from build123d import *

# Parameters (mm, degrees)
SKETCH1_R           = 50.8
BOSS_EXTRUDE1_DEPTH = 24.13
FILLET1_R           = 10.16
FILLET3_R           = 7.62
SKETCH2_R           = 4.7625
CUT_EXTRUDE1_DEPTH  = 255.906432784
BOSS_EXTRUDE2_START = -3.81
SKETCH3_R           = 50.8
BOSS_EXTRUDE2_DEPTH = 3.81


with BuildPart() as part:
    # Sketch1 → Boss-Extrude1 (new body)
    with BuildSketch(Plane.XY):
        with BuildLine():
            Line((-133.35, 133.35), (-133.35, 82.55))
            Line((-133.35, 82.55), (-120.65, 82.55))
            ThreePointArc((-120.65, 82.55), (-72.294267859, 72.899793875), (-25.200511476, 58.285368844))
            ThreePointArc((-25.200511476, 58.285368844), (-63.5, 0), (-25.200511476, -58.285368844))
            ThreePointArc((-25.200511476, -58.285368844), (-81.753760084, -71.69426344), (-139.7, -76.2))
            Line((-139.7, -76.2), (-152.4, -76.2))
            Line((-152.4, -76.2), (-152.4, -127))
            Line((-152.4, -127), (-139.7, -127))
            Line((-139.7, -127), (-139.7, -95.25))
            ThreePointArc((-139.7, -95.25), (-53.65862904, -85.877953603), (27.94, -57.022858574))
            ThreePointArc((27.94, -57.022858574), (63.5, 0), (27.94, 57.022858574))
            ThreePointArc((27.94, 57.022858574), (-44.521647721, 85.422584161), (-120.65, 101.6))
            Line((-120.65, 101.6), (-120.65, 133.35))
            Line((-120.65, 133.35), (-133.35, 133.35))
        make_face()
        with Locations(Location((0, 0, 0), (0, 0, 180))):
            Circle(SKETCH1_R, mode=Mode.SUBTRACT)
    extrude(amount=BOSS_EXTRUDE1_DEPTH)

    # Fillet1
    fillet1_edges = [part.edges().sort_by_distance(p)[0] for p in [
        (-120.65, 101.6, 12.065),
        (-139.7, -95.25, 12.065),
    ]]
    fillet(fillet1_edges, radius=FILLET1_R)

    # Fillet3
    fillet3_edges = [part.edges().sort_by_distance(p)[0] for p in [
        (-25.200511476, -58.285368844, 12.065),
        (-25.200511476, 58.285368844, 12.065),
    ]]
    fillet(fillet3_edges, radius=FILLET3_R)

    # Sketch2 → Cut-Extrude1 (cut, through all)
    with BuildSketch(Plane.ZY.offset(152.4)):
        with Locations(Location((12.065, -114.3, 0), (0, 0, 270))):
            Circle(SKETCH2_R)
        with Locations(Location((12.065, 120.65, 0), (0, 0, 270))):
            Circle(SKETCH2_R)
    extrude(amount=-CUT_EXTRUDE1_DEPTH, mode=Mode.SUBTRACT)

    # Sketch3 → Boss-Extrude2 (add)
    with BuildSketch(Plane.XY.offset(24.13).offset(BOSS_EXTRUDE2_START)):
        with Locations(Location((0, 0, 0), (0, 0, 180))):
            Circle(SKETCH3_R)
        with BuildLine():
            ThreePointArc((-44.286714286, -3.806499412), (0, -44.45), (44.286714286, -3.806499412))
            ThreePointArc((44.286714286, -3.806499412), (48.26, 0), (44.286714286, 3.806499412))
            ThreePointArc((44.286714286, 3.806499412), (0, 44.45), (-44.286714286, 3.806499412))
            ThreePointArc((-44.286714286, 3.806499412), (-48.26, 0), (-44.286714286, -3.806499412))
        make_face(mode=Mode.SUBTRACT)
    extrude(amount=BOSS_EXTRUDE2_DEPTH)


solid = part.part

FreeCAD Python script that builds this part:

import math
import FreeCAD as App
import Part
import Sketcher
from FreeCAD import Vector
Q = App.Units.Quantity


def edges_at(feature, points):
    """Names of the edges that pass closest to the given points."""
    edges = feature.Shape.Edges
    near = lambda p: min(range(len(edges)), key=lambda i: edges[i].distToShape(Part.Vertex(*p))[0])
    return sorted({f"Edge{near(p) + 1}" for p in points})

doc = App.newDocument("Part")
body = doc.addObject("PartDesign::Body", "Body")

# Sketch on XY plane
sketch1 = body.newObject("Sketcher::SketchObject", "Sketch")
sketch1.AttachmentSupport = (doc.getObject("XY_Plane"), [""])
sketch1.MapMode = "FlatFace"
sketch1.addGeometry(Part.LineSegment(Vector(-133.35, 133.35, 0), Vector(-133.35, 82.55, 0)), False)
sketch1.addGeometry(Part.LineSegment(Vector(-133.35, 82.55, 0), Vector(-120.65, 82.55, 0)), False)
sketch1.addGeometry(Part.ArcOfCircle(Part.Circle(Vector(-189.246773, -387.154874, 0), Vector(0, 0, 1), 474.687462), math.radians(69.78231), math.radians(81.691133)), False)
sketch1.addGeometry(Part.ArcOfCircle(Part.Circle(Vector(0, 0, 0), Vector(0, 0, 1), 63.5), math.radians(113.381931), math.radians(246.618069)), False)
sketch1.addGeometry(Part.ArcOfCircle(Part.Circle(Vector(-139.7, 298.663059, 0), Vector(0, 0, 1), 374.863059), math.radians(-90), math.radians(-72.215151)), False)
sketch1.addGeometry(Part.LineSegment(Vector(-139.7, -76.2, 0), Vector(-152.4, -76.2, 0)), False)
sketch1.addGeometry(Part.LineSegment(Vector(-152.4, -76.2, 0), Vector(-152.4, -127, 0)), False)
sketch1.addGeometry(Part.LineSegment(Vector(-152.4, -127, 0), Vector(-139.7, -127, 0)), False)
sketch1.addGeometry(Part.LineSegment(Vector(-139.7, -127, 0), Vector(-139.7, -95.25, 0)), False)
sketch1.addGeometry(Part.ArcOfCircle(Part.Circle(Vector(-136.999746, 279.603334, 0), Vector(0, 0, 1), 374.863059), math.radians(-90.412723), math.radians(-63.896119)), False)
sketch1.addGeometry(Part.ArcOfCircle(Part.Circle(Vector(0, 0, 0), Vector(0, 0, 1), 63.5), math.radians(-63.896119), math.radians(63.896119)), False)
sketch1.addGeometry(Part.ArcOfCircle(Part.Circle(Vector(-180.922483, -369.245425, 0), Vector(0, 0, 1), 474.687462), math.radians(63.896119), math.radians(82.705293)), False)
sketch1.addGeometry(Part.LineSegment(Vector(-120.65, 101.6, 0), Vector(-120.65, 133.35, 0)), False)
sketch1.addGeometry(Part.LineSegment(Vector(-120.65, 133.35, 0), Vector(-133.35, 133.35, 0)), False)
sketch1.addGeometry(Part.Circle(Vector(0, 0, 0), Vector(0, 0, 1), 50.8), False)
sketch1.addConstraint(Sketcher.Constraint("Coincident", 0, 2, 1, 1))
sketch1.addConstraint(Sketcher.Constraint("Coincident", 1, 2, 2, 2))
sketch1.addConstraint(Sketcher.Constraint("Coincident", 2, 1, 3, 1))
sketch1.addConstraint(Sketcher.Constraint("Coincident", 3, 2, 4, 2))
sketch1.addConstraint(Sketcher.Constraint("Tangent", 4, 1, 5, 1))
sketch1.addConstraint(Sketcher.Constraint("Coincident", 5, 2, 6, 1))
sketch1.addConstraint(Sketcher.Constraint("Coincident", 6, 2, 7, 1))
sketch1.addConstraint(Sketcher.Constraint("Coincident", 7, 2, 8, 1))
sketch1.addConstraint(Sketcher.Constraint("Coincident", 8, 2, 9, 1))
sketch1.addConstraint(Sketcher.Constraint("Tangent", 9, 2, 10, 1))
sketch1.addConstraint(Sketcher.Constraint("Tangent", 10, 2, 11, 1))
sketch1.addConstraint(Sketcher.Constraint("Coincident", 11, 2, 12, 1))
sketch1.addConstraint(Sketcher.Constraint("Coincident", 12, 2, 13, 1))
sketch1.addConstraint(Sketcher.Constraint("Coincident", 13, 2, 0, 1))
sketch1.addConstraint(Sketcher.Constraint("Vertical", 0))
sketch1.addConstraint(Sketcher.Constraint("Horizontal", 1))
sketch1.addConstraint(Sketcher.Constraint("Horizontal", 5))
sketch1.addConstraint(Sketcher.Constraint("Vertical", 6))
sketch1.addConstraint(Sketcher.Constraint("Horizontal", 7))
sketch1.addConstraint(Sketcher.Constraint("Vertical", 8))
sketch1.addConstraint(Sketcher.Constraint("Vertical", 12))
sketch1.addConstraint(Sketcher.Constraint("Horizontal", 13))
sketch1.addConstraint(Sketcher.Constraint("Coincident", 3, 3, -1, 1))
sketch1.addConstraint(Sketcher.Constraint("Coincident", 10, 3, -1, 1))
sketch1.addConstraint(Sketcher.Constraint("Coincident", 14, 3, -1, 1))
sketch1.addConstraint(Sketcher.Constraint("Equal", 4, 9))
sketch1.addConstraint(Sketcher.Constraint("Equal", 3, 10))
sketch1.addConstraint(Sketcher.Constraint("Equal", 2, 11))
sketch1.addConstraint(Sketcher.Constraint("Vertical", 2, 1, 3, 2))
sketch1.addConstraint(Sketcher.Constraint("Vertical", 4, 1, 7, 2))
sketch1.addConstraint(Sketcher.Constraint("Vertical", 1, 2, 11, 2))
sketch1.addConstraint(Sketcher.Constraint("Equal", 1, 5))
sketch1.addConstraint(Sketcher.Constraint("Equal", 0, 6))
sketch1.addConstraint(Sketcher.Constraint("Equal", 8, 12))
sketch1.addConstraint(Sketcher.Constraint("Diameter", 14, Q("4 in")))
sketch1.addConstraint(Sketcher.Constraint("Radius", 3, Q("2.5 in")))
sketch1.addConstraint(Sketcher.Constraint("DistanceY", 0, 2, 0, 1, Q("2 in")))
sketch1.addConstraint(Sketcher.Constraint("DistanceX", 1, 1, 1, 2, Q("0.5 in")))
sketch1.addConstraint(Sketcher.Constraint("DistanceY", 4, 1, -1, 1, Q("3 in")))
sketch1.addConstraint(Sketcher.Constraint("DistanceX", 5, 2, -1, 1, Q("6 in")))
sketch1.addConstraint(Sketcher.Constraint("DistanceY", -1, 1, 11, 2, Q("4 in")))
sketch1.addConstraint(Sketcher.Constraint("DistanceY", 8, 1, 8, 2, Q("1.25 in")))
sketch1.addConstraint(Sketcher.Constraint("DistanceX", 0, 2, -1, 1, Q("5.25 in")))
sketch1.addConstraint(Sketcher.Constraint("Radius", 2, Q("474.687462 mm")))
sketch1.addConstraint(Sketcher.Constraint("Radius", 4, Q("374.863059 mm")))
pad1 = body.newObject("PartDesign::Pad", "Pad")
pad1.Profile = sketch1
pad1.Length = Q("0.95 in")
doc.recompute()

fillet = body.newObject("PartDesign::Fillet", "Fillet")
fillet.Base = (pad1, edges_at(pad1, [(-120.65, 101.6, 12.065), (-139.7, -95.25, 12.065)]))
fillet.Radius = Q("0.4 in")
doc.recompute()

fillet2 = body.newObject("PartDesign::Fillet", "Fillet001")
fillet2.Base = (fillet, edges_at(fillet, [(-25.201, -58.285, 12.065), (-25.201, 58.285, 12.065)]))
fillet2.Radius = Q("0.3 in")

# Sketch on YZ plane
sketch2 = body.newObject("Sketcher::SketchObject", "Sketch001")
sketch2.AttachmentSupport = (doc.getObject("YZ_Plane"), [""])
sketch2.MapMode = "FlatFace"
sketch2.AttachmentOffset = App.Placement(Vector(0, 0, -6 * 25.4), App.Rotation())
sketch2.addGeometry(Part.Circle(Vector(-114.3, 12.065, 0), Vector(0, 0, 1), 4.7625), False)
sketch2.addGeometry(Part.Circle(Vector(120.65, 12.065, 0), Vector(0, 0, 1), 4.7625), False)
sketch2.addConstraint(Sketcher.Constraint("Equal", 0, 1))
sketch2.addConstraint(Sketcher.Constraint("Horizontal", 0, 3, 1, 3))
sketch2.addConstraint(Sketcher.Constraint("Diameter", 0, Q("0.375 in")))
sketch2.addConstraint(Sketcher.Constraint("DistanceX", 0, 3, -1, 1, Q("4.5 in")))
sketch2.addConstraint(Sketcher.Constraint("DistanceX", -1, 1, 1, 3, Q("4.75 in")))
sketch2.addConstraint(Sketcher.Constraint("DistanceY", -1, 1, 0, 3, Q("0.475 in")))
pocket1 = body.newObject("PartDesign::Pocket", "Pocket")
pocket1.Profile = sketch2
pocket1.Type = "ThroughAll"
pocket1.Reversed = True

# Sketch on XY plane
sketch3 = body.newObject("Sketcher::SketchObject", "Sketch002")
sketch3.AttachmentSupport = (doc.getObject("XY_Plane"), [""])
sketch3.MapMode = "FlatFace"
sketch3.AttachmentOffset = App.Placement(Vector(0, 0, 0.8 * 25.4), App.Rotation())
sketch3.addGeometry(Part.Circle(Vector(0, 0, 0), Vector(0, 0, 1), 50.8), False)
sketch3.addGeometry(Part.ArcOfCircle(Part.Circle(Vector(0, 0, 0), Vector(0, 0, 1), 44.45), math.radians(-175.087429), math.radians(-4.912571)), False)
sketch3.addGeometry(Part.ArcOfCircle(Part.Circle(Vector(-44.45, 0, 0), Vector(0, 0, 1), 3.81), math.radians(87.543714), math.radians(272.456286)), False)
sketch3.addGeometry(Part.ArcOfCircle(Part.Circle(Vector(0, 0, 0), Vector(0, 0, 1), 44.45), math.radians(4.912571), math.radians(175.087429)), False)
sketch3.addGeometry(Part.ArcOfCircle(Part.Circle(Vector(44.45, 0, 0), Vector(0, 0, 1), 3.81), math.radians(-92.456286), math.radians(92.456286)), False)
sketch3.addConstraint(Sketcher.Constraint("Coincident", 1, 1, 2, 2))
sketch3.addConstraint(Sketcher.Constraint("Coincident", 2, 1, 3, 2))
sketch3.addConstraint(Sketcher.Constraint("Coincident", 3, 1, 4, 2))
sketch3.addConstraint(Sketcher.Constraint("Coincident", 4, 1, 1, 2))
sketch3.addConstraint(Sketcher.Constraint("Coincident", 0, 3, -1, 1))
sketch3.addConstraint(Sketcher.Constraint("Coincident", 1, 3, -1, 1))
sketch3.addConstraint(Sketcher.Constraint("Coincident", 3, 3, -1, 1))
sketch3.addConstraint(Sketcher.Constraint("Equal", 1, 3))
sketch3.addConstraint(Sketcher.Constraint("Equal", 2, 4))
sketch3.addConstraint(Sketcher.Constraint("Symmetric", 2, 3, 4, 3, -1, 1))
sketch3.addConstraint(Sketcher.Constraint("PointOnObject", 2, 3, -1))
sketch3.addConstraint(Sketcher.Constraint("Diameter", 0, Q("4 in")))
sketch3.addConstraint(Sketcher.Constraint("Radius", 1, Q("1.75 in")))
sketch3.addConstraint(Sketcher.Constraint("Radius", 2, Q("0.15 in")))
sketch3.addConstraint(Sketcher.Constraint("DistanceX", 2, 3, 4, 3, Q("3.5 in")))
pad2 = body.newObject("PartDesign::Pad", "Pad001")
pad2.Profile = sketch3
pad2.Length = Q("0.15 in")

doc.recompute()
